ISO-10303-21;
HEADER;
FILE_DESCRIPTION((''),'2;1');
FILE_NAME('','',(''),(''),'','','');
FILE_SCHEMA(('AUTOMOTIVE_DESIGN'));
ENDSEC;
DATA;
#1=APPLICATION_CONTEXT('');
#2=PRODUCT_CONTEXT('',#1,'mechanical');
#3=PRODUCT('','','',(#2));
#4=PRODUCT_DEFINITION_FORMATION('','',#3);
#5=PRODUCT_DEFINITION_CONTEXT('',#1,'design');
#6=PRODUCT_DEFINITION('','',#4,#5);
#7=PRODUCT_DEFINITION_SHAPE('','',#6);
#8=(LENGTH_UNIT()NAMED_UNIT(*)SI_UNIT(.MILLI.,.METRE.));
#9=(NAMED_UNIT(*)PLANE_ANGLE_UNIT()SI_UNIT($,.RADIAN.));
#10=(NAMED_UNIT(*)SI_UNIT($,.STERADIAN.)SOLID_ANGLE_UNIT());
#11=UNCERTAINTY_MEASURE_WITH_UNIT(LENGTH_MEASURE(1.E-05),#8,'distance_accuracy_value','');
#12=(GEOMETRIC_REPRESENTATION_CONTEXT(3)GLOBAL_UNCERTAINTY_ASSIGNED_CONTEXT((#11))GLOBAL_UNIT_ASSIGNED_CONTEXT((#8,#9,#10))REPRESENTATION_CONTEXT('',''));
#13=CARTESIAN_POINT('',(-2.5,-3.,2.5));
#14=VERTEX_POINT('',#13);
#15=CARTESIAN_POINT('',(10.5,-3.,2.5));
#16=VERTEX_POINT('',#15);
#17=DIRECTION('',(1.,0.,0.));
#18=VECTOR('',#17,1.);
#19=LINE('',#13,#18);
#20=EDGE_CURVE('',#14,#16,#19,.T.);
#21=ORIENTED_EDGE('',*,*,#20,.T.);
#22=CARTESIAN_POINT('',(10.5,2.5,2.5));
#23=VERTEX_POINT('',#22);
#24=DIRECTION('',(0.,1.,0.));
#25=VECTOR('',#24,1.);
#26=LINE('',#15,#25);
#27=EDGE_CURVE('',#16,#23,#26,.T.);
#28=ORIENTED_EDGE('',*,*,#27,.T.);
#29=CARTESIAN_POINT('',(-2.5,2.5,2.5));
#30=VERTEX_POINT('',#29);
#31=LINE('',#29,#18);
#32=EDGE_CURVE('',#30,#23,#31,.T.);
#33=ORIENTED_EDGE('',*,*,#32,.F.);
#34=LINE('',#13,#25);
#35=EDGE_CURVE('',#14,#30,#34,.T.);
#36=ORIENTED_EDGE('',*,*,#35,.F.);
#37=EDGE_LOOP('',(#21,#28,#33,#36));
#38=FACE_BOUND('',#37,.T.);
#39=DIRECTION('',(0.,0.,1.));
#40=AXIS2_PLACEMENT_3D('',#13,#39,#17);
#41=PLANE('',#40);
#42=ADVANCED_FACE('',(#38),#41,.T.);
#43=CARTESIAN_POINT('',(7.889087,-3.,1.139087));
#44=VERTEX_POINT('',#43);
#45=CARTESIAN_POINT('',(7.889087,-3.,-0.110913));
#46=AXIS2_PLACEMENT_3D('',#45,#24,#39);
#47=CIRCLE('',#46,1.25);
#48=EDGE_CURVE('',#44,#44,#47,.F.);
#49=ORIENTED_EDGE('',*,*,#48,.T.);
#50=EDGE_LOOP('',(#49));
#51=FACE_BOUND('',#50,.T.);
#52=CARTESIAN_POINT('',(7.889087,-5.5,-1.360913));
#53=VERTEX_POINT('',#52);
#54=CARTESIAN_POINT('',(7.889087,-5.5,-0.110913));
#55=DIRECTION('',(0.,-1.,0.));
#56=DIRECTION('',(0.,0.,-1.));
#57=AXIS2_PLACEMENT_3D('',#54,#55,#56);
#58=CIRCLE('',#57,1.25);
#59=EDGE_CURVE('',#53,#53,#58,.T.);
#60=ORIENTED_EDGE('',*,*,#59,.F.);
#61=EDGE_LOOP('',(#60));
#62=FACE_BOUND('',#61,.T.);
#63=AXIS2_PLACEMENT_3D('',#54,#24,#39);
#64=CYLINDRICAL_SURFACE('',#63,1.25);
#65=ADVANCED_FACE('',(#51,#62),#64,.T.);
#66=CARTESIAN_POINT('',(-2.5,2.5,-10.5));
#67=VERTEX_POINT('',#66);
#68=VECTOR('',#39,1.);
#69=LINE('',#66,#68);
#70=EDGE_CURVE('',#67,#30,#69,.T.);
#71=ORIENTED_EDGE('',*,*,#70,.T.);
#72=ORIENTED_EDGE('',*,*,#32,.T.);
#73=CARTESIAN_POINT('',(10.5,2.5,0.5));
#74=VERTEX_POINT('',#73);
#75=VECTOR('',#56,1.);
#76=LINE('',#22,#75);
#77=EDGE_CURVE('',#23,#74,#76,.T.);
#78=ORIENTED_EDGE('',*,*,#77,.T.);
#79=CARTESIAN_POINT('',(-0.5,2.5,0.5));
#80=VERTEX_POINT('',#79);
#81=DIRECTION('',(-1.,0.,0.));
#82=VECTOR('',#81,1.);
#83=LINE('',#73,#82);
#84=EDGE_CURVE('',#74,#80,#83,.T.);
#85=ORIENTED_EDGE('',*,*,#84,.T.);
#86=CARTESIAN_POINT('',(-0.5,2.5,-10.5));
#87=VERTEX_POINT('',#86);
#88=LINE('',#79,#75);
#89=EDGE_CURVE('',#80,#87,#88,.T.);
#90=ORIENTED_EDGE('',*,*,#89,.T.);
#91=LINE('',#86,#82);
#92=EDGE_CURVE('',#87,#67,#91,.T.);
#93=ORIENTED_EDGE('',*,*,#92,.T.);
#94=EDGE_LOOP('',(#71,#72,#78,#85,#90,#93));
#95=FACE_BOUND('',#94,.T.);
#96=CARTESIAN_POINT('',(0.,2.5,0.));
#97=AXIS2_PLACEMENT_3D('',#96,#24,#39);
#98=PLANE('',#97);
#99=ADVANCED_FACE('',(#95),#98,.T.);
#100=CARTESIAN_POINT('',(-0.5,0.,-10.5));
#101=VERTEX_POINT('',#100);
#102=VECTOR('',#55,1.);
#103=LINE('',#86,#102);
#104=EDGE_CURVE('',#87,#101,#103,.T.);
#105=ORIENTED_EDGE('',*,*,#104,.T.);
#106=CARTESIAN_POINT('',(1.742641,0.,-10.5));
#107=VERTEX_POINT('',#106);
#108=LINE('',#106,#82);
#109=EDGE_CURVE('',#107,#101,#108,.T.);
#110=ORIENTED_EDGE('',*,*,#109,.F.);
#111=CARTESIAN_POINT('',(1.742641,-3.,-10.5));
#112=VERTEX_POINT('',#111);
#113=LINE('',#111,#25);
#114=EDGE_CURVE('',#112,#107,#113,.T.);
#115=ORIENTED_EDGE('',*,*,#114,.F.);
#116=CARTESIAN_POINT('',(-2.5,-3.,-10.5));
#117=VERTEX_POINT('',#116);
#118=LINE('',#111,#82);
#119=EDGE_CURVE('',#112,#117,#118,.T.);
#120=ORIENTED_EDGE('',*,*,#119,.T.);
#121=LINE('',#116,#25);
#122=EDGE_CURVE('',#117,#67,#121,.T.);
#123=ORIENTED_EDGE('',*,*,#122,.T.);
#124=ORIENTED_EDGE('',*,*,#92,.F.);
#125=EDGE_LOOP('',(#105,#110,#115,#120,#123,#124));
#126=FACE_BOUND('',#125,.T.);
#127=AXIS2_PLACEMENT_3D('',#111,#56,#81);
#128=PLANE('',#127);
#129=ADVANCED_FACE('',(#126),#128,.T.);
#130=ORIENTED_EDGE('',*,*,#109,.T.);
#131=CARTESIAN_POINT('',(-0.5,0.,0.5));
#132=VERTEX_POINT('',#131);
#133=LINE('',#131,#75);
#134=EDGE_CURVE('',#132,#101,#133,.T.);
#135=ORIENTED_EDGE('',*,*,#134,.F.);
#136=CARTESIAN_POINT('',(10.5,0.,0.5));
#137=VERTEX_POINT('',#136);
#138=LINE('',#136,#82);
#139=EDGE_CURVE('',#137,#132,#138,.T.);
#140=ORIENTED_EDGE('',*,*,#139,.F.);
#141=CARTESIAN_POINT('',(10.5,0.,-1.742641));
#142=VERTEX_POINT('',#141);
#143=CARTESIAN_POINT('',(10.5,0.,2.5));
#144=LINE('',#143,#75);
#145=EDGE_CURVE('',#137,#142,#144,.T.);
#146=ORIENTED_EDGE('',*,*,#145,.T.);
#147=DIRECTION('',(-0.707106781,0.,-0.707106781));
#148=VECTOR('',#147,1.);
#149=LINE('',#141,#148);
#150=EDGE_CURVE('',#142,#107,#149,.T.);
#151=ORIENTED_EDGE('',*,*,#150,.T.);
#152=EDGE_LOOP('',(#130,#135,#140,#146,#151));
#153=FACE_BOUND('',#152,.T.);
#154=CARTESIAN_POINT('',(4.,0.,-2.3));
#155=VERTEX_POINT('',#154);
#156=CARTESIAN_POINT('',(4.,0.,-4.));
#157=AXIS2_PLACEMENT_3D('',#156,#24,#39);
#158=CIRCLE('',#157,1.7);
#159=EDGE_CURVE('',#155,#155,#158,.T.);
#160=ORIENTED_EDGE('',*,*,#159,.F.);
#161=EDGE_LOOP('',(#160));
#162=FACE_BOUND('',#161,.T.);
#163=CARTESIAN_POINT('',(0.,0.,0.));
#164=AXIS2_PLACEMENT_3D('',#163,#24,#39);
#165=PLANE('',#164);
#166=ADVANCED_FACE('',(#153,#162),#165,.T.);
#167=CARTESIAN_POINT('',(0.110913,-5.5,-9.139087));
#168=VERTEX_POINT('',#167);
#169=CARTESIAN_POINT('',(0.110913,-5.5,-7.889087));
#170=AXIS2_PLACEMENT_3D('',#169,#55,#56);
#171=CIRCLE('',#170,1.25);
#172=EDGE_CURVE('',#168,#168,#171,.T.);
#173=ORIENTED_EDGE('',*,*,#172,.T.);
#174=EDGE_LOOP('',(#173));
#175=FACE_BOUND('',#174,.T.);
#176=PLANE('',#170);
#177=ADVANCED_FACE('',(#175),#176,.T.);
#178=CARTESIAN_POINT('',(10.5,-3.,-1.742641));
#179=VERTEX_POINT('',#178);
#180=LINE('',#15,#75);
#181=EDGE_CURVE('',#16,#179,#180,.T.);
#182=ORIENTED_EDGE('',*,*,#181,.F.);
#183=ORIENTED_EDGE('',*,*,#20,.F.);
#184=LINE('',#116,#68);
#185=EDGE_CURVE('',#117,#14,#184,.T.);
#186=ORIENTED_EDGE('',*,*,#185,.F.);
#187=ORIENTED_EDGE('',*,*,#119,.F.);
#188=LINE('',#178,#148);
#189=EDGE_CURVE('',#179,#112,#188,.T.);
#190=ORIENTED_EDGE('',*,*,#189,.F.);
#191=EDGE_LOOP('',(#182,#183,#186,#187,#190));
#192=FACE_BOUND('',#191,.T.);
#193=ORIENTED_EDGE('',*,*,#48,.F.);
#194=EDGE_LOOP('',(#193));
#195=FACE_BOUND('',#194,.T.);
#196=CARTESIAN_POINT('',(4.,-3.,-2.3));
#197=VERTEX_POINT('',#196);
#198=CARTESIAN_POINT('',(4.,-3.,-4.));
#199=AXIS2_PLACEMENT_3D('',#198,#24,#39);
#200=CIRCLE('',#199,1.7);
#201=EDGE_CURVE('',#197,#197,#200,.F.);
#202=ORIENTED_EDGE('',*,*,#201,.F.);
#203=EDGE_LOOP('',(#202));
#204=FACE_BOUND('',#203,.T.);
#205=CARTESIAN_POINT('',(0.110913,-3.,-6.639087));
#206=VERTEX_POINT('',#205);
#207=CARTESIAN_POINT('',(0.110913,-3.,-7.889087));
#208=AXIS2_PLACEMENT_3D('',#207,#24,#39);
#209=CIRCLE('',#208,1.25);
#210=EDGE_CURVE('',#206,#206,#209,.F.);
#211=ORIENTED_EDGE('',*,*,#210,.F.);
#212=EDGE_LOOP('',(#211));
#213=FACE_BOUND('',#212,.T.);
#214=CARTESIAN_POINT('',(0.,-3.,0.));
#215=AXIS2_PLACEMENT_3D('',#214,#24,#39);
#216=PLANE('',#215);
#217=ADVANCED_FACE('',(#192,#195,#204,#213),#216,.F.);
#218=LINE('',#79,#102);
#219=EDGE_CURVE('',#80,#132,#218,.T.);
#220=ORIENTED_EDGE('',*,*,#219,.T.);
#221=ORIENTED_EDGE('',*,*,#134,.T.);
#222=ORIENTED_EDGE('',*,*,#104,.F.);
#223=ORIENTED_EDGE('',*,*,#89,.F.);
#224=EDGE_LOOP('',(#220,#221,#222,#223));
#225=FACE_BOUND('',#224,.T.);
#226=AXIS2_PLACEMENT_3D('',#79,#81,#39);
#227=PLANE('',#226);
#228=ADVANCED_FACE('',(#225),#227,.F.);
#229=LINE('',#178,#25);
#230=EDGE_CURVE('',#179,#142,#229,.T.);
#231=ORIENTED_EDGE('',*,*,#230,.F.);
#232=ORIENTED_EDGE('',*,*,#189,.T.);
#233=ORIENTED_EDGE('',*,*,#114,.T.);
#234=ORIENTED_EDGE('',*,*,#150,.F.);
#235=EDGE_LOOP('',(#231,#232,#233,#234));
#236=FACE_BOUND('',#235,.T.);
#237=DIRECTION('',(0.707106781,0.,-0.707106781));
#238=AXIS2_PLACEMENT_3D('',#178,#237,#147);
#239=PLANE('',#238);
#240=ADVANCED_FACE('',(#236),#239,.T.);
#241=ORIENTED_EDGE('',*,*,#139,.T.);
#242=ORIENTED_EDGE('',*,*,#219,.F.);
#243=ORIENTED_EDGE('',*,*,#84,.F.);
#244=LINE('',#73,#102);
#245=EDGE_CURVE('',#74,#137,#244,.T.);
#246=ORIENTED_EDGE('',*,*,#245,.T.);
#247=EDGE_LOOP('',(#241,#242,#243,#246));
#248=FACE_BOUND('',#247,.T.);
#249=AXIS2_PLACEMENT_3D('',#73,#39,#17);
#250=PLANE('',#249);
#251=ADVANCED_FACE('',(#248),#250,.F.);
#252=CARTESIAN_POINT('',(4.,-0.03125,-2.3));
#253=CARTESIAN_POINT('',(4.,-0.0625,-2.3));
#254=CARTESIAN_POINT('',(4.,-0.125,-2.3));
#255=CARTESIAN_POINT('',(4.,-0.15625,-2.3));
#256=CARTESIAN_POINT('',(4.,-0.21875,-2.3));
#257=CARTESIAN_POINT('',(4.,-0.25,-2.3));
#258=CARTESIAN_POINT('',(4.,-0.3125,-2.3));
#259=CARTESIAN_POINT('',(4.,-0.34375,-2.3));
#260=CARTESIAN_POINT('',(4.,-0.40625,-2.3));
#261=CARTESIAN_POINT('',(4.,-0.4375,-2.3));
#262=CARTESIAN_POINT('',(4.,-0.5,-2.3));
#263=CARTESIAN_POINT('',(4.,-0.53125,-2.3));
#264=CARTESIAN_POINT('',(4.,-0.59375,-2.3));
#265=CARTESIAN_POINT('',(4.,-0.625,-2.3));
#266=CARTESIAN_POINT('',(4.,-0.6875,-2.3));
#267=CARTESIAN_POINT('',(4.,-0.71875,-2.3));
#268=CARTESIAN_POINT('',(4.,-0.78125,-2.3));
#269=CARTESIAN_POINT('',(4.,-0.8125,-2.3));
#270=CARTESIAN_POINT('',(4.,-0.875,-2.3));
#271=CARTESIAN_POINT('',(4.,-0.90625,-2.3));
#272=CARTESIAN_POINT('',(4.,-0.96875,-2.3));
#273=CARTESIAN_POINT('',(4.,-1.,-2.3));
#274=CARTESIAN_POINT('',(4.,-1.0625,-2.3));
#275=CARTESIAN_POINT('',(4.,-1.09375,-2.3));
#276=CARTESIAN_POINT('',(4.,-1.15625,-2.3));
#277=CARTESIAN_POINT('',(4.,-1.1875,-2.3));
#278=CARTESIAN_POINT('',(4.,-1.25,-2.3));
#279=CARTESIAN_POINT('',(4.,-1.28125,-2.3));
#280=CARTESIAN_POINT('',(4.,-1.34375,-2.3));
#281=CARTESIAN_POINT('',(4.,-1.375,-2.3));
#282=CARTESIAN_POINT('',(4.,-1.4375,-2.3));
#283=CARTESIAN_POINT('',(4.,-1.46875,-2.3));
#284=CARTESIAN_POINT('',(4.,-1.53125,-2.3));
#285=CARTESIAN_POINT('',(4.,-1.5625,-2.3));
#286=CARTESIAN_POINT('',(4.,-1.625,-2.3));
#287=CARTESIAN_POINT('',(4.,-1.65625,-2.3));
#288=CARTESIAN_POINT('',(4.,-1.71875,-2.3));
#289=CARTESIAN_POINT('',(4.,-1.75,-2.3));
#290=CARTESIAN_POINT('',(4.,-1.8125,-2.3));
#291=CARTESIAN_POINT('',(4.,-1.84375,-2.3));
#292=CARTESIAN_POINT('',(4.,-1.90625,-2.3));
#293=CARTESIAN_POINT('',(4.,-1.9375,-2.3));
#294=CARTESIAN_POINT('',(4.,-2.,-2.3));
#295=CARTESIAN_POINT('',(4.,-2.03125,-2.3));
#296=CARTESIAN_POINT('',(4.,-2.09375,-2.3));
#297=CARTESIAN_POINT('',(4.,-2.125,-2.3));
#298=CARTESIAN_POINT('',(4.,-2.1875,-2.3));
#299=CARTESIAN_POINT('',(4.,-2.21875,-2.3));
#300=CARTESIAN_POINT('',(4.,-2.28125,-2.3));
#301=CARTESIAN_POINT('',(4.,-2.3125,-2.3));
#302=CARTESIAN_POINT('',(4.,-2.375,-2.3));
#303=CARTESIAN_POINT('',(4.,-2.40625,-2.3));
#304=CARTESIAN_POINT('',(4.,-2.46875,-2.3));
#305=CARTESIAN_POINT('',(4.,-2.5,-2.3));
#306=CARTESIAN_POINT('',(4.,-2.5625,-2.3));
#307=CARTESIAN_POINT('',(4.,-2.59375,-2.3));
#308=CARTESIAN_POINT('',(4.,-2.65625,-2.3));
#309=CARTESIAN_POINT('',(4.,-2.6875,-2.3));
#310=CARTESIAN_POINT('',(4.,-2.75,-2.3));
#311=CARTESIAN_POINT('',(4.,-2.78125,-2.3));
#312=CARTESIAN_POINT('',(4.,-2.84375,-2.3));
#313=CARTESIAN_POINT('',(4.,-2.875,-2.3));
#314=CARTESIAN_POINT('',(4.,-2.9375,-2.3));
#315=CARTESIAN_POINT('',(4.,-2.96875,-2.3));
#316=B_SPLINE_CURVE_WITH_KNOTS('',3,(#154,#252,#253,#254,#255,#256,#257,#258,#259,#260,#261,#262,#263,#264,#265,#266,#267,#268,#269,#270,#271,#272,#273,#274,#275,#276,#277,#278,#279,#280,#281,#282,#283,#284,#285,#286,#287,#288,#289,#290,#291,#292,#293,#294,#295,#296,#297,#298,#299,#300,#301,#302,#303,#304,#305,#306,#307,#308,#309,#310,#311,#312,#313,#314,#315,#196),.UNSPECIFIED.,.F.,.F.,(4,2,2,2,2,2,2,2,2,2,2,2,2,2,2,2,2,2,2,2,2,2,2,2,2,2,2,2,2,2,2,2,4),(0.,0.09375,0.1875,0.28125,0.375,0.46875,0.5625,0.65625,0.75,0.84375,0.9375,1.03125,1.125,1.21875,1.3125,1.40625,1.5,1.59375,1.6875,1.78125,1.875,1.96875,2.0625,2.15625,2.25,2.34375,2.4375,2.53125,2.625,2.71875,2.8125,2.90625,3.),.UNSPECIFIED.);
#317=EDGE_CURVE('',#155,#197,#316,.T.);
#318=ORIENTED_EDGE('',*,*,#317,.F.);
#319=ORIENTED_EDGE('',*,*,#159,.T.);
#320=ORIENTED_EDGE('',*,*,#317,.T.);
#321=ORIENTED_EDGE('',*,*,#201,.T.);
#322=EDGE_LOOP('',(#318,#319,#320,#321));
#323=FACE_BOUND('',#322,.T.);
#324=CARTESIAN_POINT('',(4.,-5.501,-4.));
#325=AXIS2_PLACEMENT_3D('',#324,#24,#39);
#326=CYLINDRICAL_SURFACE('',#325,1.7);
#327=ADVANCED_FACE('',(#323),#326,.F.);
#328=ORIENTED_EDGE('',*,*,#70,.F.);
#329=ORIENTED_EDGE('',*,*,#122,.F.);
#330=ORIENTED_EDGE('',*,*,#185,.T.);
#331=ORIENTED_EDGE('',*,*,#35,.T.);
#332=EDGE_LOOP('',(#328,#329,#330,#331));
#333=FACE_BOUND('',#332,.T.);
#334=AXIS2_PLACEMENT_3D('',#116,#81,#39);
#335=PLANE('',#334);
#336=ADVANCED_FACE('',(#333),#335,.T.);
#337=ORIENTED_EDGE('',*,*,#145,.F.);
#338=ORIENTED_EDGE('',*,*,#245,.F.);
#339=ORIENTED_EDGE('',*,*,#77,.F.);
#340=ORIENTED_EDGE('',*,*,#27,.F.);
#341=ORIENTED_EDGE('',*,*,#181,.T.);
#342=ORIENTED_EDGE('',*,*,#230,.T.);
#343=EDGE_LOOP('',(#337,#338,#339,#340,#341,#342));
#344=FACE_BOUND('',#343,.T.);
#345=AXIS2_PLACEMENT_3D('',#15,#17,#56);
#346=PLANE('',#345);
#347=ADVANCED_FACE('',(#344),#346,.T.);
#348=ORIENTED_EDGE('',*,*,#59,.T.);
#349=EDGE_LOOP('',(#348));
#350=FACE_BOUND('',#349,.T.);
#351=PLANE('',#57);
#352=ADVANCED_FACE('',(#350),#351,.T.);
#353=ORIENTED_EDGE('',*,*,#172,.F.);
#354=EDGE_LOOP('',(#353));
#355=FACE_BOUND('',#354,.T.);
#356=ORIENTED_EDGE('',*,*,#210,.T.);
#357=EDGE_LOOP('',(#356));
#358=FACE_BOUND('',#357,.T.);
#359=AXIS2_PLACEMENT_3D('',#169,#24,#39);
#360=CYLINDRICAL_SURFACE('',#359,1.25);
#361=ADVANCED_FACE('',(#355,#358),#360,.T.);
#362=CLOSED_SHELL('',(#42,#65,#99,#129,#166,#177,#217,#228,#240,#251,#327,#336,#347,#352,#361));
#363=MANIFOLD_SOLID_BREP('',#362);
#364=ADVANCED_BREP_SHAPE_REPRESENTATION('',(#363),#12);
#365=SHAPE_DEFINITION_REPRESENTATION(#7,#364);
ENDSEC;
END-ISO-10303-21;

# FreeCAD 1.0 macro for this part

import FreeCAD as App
import Part
import Sketcher
from FreeCAD import Vector
Q = App.Units.Quantity


def add_polygon(sketch, points):
    """Adds a closed chain of lines whose ends are joined by coincident constraints."""
    first, n = sketch.GeometryCount, len(points)
    for a, b in zip(points, points[1:] + points[:1]):
        sketch.addGeometry(Part.LineSegment(App.Vector(*a, 0), App.Vector(*b, 0)), False)
    for i in range(n):
        sketch.addConstraint(Sketcher.Constraint("Coincident", first + i, 2, first + (i + 1) % n, 1))

doc = App.newDocument("Part")
params = doc.addObject("Spreadsheet::Sheet", "Params")
for row, (alias, value) in enumerate([
    ("sketch1_width", "13 mm"),
    ("pad1_length", "3 mm"),
    ("sketch2_diameter", "2.5 mm"),
    ("pad2_length", "2.5 mm"),
    ("sketch3_width", "13 mm"),
    ("sketch3_width2", "11 mm"),
    ("pad3_length", "2.5 mm"),
    ("sketch4_diameter", "3.4 mm"),
], start=1):
    params.set(f"A{row}", alias)
    params.set(f"B{row}", "=" + value)
    params.setAlias(f"B{row}", alias)

body = doc.addObject("PartDesign::Body", "Body")

# Sketch on XZ plane
sketch1 = doc.addObject("Sketcher::SketchObject", "Sketch")
body.addObject(sketch1)
sketch1.AttachmentSupport = (doc.XZ_Plane, [""])
sketch1.MapMode = "FlatFace"
add_polygon(sketch1, [(-2.5, -10.5), (-2.5, 2.5), (10.5, 2.5), (10.5, -1.7), (1.7, -10.5)])  # lines 0-4
sketch1.addConstraint(Sketcher.Constraint("Vertical", 0))
sketch1.addConstraint(Sketcher.Constraint("Horizontal", 1))
sketch1.addConstraint(Sketcher.Constraint("Vertical", 2))
sketch1.addConstraint(Sketcher.Constraint("Horizontal", 4))
sketch1.addConstraint(Sketcher.Constraint("Equal", 1, 0))
sketch1.addConstraint(Sketcher.Constraint("Equal", 4, 2))
sketch1.addConstraint(Sketcher.Constraint("DistanceX", 1, 1, 1, 2, Q("13 mm")))
sketch1.addConstraint(Sketcher.Constraint("DistanceX", 0, 2, -1, 1, Q("2.5 mm")))
sketch1.addConstraint(Sketcher.Constraint("DistanceY", -1, 1, 0, 2, Q("2.5 mm")))
sketch1.addConstraint(Sketcher.Constraint("DistanceX", 4, 2, 4, 1, Q("4.242641 mm")))
sketch1.setExpression("Constraints[11]", "Params.sketch1_width")
pad1 = doc.addObject("PartDesign::Pad", "Pad")
body.addObject(pad1)
pad1.Profile = sketch1
pad1.setExpression("Length", "Params.pad1_length")

# Sketch on XZ plane
sketch2 = doc.addObject("Sketcher::SketchObject", "Sketch001")
body.addObject(sketch2)
sketch2.AttachmentSupport = (doc.XZ_Plane, [""])
sketch2.MapMode = "FlatFace"
sketch2.AttachmentOffset = App.Placement(Vector(0, 0, 3), App.Rotation())
sketch2.addGeometry(Part.Circle(Vector(7.9, -0.1, 0), Vector(0, 0, 1), 1.2), False)
sketch2.addGeometry(Part.Circle(Vector(0.1, -7.9, 0), Vector(0, 0, 1), 1.2), False)
sketch2.addConstraint(Sketcher.Constraint("Equal", 0, 1))
sketch2.addConstraint(Sketcher.Constraint("Diameter", 0, Q("2.5 mm")))
sketch2.addConstraint(Sketcher.Constraint("DistanceX", -1, 1, 0, 3, Q("7.889087 mm")))
sketch2.addConstraint(Sketcher.Constraint("DistanceY", 0, 3, -1, 1, Q("0.110913 mm")))
sketch2.addConstraint(Sketcher.Constraint("DistanceX", -1, 1, 1, 3, Q("0.110913 mm")))
sketch2.addConstraint(Sketcher.Constraint("DistanceY", 1, 3, -1, 1, Q("7.889087 mm")))
sketch2.setExpression("Constraints[1]", "Params.sketch2_diameter")
pad2 = doc.addObject("PartDesign::Pad", "Pad001")
body.addObject(pad2)
pad2.Profile = sketch2
pad2.setExpression("Length", "Params.pad2_length")

# Sketch on XZ plane
sketch3 = doc.addObject("Sketcher::SketchObject", "Sketch002")
body.addObject(sketch3)
sketch3.AttachmentSupport = (doc.XZ_Plane, [""])
sketch3.MapMode = "FlatFace"
add_polygon(sketch3, [(-2.5, -10.5), (-2.5, 2.5), (10.5, 2.5), (10.5, 0.5), (-0.5, 0.5), (-0.5, -10.5)])  # lines 0-5
sketch3.addConstraint(Sketcher.Constraint("Vertical", 0))
sketch3.addConstraint(Sketcher.Constraint("Horizontal", 1))
sketch3.addConstraint(Sketcher.Constraint("Vertical", 2))
sketch3.addConstraint(Sketcher.Constraint("Horizontal", 3))
sketch3.addConstraint(Sketcher.Constraint("Vertical", 4))
sketch3.addConstraint(Sketcher.Constraint("Horizontal", 5))
sketch3.addConstraint(Sketcher.Constraint("Equal", 1, 0))
sketch3.addConstraint(Sketcher.Constraint("Equal", 5, 2))
sketch3.addConstraint(Sketcher.Constraint("DistanceX", 1, 1, 1, 2, Q("13 mm")))
sketch3.addConstraint(Sketcher.Constraint("DistanceX", 3, 2, 3, 1, Q("11 mm")))
sketch3.addConstraint(Sketcher.Constraint("DistanceX", 0, 2, -1, 1, Q("2.5 mm")))
sketch3.addConstraint(Sketcher.Constraint("DistanceY", -1, 1, 0, 2, Q("2.5 mm")))
sketch3.setExpression("Constraints[14]", "Params.sketch3_width")
sketch3.setExpression("Constraints[15]", "Params.sketch3_width2")
pad3 = doc.addObject("PartDesign::Pad", "Pad002")
body.addObject(pad3)
pad3.Profile = sketch3
pad3.setExpression("Length", "Params.pad3_length")
pad3.Reversed = True

# Sketch on XZ plane
sketch4 = doc.addObject("Sketcher::SketchObject", "Sketch003")
body.addObject(sketch4)
sketch4.AttachmentSupport = (doc.XZ_Plane, [""])
sketch4.MapMode = "FlatFace"
sketch4.addGeometry(Part.Circle(Vector(4, -4, 0), Vector(0, 0, 1), 1.7), False)
sketch4.addConstraint(Sketcher.Constraint("Diameter", 0, Q("3.4 mm")))
sketch4.addConstraint(Sketcher.Constraint("DistanceX", -1, 1, 0, 3, Q("4 mm")))
sketch4.addConstraint(Sketcher.Constraint("DistanceY", 0, 3, -1, 1, Q("4 mm")))
sketch4.setExpression("Constraints[0]", "Params.sketch4_diameter")
pocket1 = doc.addObject("PartDesign::Pocket", "Pocket")
body.addObject(pocket1)
pocket1.Profile = sketch4
pocket1.Type = "UpToFirst"
pocket1.Reversed = True

doc.recompute()
